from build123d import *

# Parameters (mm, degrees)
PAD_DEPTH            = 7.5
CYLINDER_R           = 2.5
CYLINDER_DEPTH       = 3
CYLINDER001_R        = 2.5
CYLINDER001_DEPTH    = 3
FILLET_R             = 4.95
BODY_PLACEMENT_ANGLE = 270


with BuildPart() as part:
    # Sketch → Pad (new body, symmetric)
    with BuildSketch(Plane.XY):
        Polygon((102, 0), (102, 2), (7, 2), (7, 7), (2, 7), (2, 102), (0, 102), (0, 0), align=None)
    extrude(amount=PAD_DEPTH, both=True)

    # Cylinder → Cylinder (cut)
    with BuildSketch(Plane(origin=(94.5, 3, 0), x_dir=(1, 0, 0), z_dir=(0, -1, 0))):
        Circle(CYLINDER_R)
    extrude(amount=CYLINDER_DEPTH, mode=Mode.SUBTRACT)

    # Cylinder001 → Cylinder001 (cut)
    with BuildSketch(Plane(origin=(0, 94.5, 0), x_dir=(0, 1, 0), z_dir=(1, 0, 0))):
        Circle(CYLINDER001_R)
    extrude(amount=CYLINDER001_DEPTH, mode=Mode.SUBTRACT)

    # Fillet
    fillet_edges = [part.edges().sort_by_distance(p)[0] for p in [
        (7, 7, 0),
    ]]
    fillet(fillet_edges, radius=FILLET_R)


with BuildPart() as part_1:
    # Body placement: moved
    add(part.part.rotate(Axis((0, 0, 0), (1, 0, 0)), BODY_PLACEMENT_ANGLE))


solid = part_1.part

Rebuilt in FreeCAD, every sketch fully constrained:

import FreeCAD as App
import Part
import Sketcher


def edges_at(feature, points):
    """Names of the edges that pass closest to the given points."""
    edges = feature.Shape.Edges
    near = lambda p: min(range(len(edges)), key=lambda i: edges[i].distToShape(Part.Vertex(*p))[0])
    return sorted({f"Edge{near(p) + 1}" for p in points})

doc = App.newDocument("Part")
body = doc.addObject("PartDesign::Body", "Body")

# Sketch on XY plane
sketch1 = body.newObject("Sketcher::SketchObject", "Sketch")
sketch1.AttachmentSupport = (doc.getObject("XY_Plane"), [""])
sketch1.MapMode = "FlatFace"
sketch1.addGeometry(Part.LineSegment(App.Vector(102, 0, 0), App.Vector(102, 2, 0)), False)
sketch1.addGeometry(Part.LineSegment(App.Vector(102, 2, 0), App.Vector(7, 2, 0)), False)
sketch1.addGeometry(Part.LineSegment(App.Vector(7, 2, 0), App.Vector(7, 7, 0)), False)
sketch1.addGeometry(Part.LineSegment(App.Vector(7, 7, 0), App.Vector(2, 7, 0)), False)
sketch1.addGeometry(Part.LineSegment(App.Vector(2, 7, 0), App.Vector(2, 102, 0)), False)
sketch1.addGeometry(Part.LineSegment(App.Vector(2, 102, 0), App.Vector(0, 102, 0)), False)
sketch1.addGeometry(Part.LineSegment(App.Vector(0, 102, 0), App.Vector(0, 0, 0)), False)
sketch1.addGeometry(Part.LineSegment(App.Vector(0, 0, 0), App.Vector(102, 0, 0)), False)
sketch1.addConstraint(Sketcher.Constraint("Coincident", 0, 2, 1, 1))
sketch1.addConstraint(Sketcher.Constraint("Coincident", 1, 2, 2, 1))
sketch1.addConstraint(Sketcher.Constraint("Coincident", 2, 2, 3, 1))
sketch1.addConstraint(Sketcher.Constraint("Coincident", 3, 2, 4, 1))
sketch1.addConstraint(Sketcher.Constraint("Coincident", 4, 2, 5, 1))
sketch1.addConstraint(Sketcher.Constraint("Coincident", 5, 2, 6, 1))
sketch1.addConstraint(Sketcher.Constraint("Coincident", 6, 2, 7, 1))
sketch1.addConstraint(Sketcher.Constraint("Coincident", 7, 2, 0, 1))
sketch1.addConstraint(Sketcher.Constraint("Vertical", 0))
sketch1.addConstraint(Sketcher.Constraint("Horizontal", 1))
sketch1.addConstraint(Sketcher.Constraint("Vertical", 2))
sketch1.addConstraint(Sketcher.Constraint("Horizontal", 3))
sketch1.addConstraint(Sketcher.Constraint("Vertical", 4))
sketch1.addConstraint(Sketcher.Constraint("Horizontal", 5))
sketch1.addConstraint(Sketcher.Constraint("Vertical", 6))
sketch1.addConstraint(Sketcher.Constraint("Horizontal", 7))
sketch1.addConstraint(Sketcher.Constraint("Coincident", 6, 2, -1, 1))
sketch1.addConstraint(Sketcher.Constraint("Equal", 5, 0))
sketch1.addConstraint(Sketcher.Constraint("Equal", 3, 2))
sketch1.addConstraint(Sketcher.Constraint("Equal", 1, 4))
sketch1.addConstraint(Sketcher.Constraint("DistanceX", 1, 2, 1, 1, 95.0))
sketch1.addConstraint(Sketcher.Constraint("DistanceX", 3, 2, 3, 1, 5.0))
sketch1.addConstraint(Sketcher.Constraint("DistanceX", 5, 2, 5, 1, 2.0))
pad1 = body.newObject("PartDesign::Pad", "Pad")
pad1.Profile = sketch1
pad1.Length = 15
pad1.Midplane = True

# Sketch on XZ plane
sketch2 = body.newObject("Sketcher::SketchObject", "Sketch001")
sketch2.AttachmentSupport = (doc.getObject("XZ_Plane"), [""])
sketch2.MapMode = "FlatFace"
sketch2.AttachmentOffset = App.Placement(App.Vector(0, 0, -3), App.Rotation())
sketch2.addGeometry(Part.Circle(App.Vector(94.5, 0, 0), App.Vector(0, 0, 1), 2.5), False)
sketch2.addConstraint(Sketcher.Constraint("PointOnObject", 0, 3, -1))
sketch2.addConstraint(Sketcher.Constraint("Diameter", 0, 5.0))
sketch2.addConstraint(Sketcher.Constraint("DistanceX", -1, 1, 0, 3, 94.5))
pocket1 = body.newObject("PartDesign::Pocket", "Pocket")
pocket1.Profile = sketch2
pocket1.Length = 3
pocket1.Reversed = True

# Sketch on YZ plane
sketch3 = body.newObject("Sketcher::SketchObject", "Sketch002")
sketch3.AttachmentSupport = (doc.getObject("YZ_Plane"), [""])
sketch3.MapMode = "FlatFace"
sketch3.addGeometry(Part.Circle(App.Vector(94.5, 0, 0), App.Vector(0, 0, 1), 2.5), False)
sketch3.addConstraint(Sketcher.Constraint("PointOnObject", 0, 3, -1))
sketch3.addConstraint(Sketcher.Constraint("Diameter", 0, 5.0))
sketch3.addConstraint(Sketcher.Constraint("DistanceX", -1, 1, 0, 3, 94.5))
pocket2 = body.newObject("PartDesign::Pocket", "Pocket001")
pocket2.Profile = sketch3
pocket2.Length = 3
pocket2.Reversed = True
doc.recompute()

fillet = body.newObject("PartDesign::Fillet", "Fillet")
fillet.Base = (pocket2, edges_at(pocket2, [(7, 7, 0)]))
fillet.Radius = 4.95
body2 = doc.addObject("PartDesign::Body", "Body001")
doc.recompute()

body.Placement = App.Placement(App.Vector(0, 0, 0), App.Rotation(App.Vector(1, 0, 0), 270))
boolean = body2.newObject("PartDesign::Boolean", "Boolean")
boolean.Type = "Fuse"
boolean.addObjects([body])

doc.recompute()
